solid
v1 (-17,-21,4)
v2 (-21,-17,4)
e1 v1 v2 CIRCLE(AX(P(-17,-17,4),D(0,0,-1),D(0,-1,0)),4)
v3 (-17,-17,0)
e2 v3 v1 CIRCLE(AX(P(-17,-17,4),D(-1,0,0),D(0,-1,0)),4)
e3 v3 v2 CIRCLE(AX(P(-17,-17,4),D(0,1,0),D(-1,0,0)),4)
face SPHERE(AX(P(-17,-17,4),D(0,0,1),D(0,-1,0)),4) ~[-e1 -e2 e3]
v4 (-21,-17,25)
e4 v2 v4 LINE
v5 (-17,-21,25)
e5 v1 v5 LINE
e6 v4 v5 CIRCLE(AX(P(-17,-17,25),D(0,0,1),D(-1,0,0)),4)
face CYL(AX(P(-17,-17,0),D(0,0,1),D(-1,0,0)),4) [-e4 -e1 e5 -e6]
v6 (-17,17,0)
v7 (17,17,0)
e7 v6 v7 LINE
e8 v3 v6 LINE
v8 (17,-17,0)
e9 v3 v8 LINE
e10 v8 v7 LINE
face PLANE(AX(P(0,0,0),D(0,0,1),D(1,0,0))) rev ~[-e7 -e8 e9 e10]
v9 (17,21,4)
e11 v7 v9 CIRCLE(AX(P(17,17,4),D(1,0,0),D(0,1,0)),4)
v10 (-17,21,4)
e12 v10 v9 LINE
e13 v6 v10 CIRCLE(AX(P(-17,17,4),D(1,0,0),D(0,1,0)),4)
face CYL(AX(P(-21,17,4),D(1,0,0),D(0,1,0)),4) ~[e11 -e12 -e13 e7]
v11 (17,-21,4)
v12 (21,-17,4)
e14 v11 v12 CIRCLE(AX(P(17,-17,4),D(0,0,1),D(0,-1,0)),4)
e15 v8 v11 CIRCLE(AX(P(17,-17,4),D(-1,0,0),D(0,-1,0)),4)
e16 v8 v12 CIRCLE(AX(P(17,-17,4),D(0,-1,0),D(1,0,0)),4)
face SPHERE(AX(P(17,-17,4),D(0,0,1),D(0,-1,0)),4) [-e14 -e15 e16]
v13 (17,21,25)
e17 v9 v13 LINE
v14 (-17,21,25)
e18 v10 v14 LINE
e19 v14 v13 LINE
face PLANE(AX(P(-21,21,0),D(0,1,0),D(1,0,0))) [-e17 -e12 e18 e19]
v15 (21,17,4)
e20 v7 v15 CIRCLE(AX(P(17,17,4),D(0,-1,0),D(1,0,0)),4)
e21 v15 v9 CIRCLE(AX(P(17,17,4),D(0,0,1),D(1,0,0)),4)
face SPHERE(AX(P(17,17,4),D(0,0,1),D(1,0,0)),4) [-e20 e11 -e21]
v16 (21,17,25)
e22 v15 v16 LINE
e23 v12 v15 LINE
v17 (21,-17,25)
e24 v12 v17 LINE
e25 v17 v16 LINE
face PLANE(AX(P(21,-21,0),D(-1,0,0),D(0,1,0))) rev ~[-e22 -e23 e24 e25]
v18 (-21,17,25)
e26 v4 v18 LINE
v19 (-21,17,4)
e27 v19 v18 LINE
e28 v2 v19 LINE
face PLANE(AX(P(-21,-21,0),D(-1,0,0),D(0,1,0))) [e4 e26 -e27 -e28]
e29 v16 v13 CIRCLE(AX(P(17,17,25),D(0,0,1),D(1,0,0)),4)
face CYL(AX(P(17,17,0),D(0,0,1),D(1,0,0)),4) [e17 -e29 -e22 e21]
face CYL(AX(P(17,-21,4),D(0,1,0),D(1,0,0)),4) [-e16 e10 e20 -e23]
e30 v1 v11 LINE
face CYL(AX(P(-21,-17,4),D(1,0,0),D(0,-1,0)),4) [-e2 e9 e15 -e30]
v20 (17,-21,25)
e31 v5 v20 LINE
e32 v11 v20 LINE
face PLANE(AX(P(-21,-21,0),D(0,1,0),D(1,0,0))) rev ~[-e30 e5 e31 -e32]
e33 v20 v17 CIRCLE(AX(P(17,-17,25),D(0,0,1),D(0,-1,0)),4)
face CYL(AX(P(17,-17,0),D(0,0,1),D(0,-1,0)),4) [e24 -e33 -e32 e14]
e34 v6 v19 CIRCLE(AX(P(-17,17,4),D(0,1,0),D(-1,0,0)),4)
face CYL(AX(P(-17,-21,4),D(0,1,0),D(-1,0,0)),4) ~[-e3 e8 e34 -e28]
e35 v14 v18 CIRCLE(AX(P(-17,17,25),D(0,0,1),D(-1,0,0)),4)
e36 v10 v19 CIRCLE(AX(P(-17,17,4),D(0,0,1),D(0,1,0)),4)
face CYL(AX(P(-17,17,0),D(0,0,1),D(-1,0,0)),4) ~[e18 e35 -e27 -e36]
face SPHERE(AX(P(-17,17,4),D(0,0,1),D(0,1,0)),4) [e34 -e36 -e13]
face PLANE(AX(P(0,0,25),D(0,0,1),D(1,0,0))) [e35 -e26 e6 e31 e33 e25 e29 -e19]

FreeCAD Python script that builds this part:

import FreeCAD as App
import Part
import Sketcher

V = App.Vector
Q = App.Units.Quantity

doc = App.newDocument("Part")
params = doc.addObject("Spreadsheet::Sheet", "Params")
for row, (alias, value) in enumerate([
    ("sketch1_width", "42 mm"),
    ("pad1_length", "40 mm"),
    ("fillet_radius", "4 mm"),
    ("pocket1_length", "15 mm"),
], start=1):
    params.set(f"A{row}", alias)
    params.set(f"B{row}", "=" + value)
    params.setAlias(f"B{row}", alias)

body = doc.addObject("PartDesign::Body", "Body")

sketch1 = body.newObject("Sketcher::SketchObject", "Sketch")
sketch1.AttachmentSupport = (doc.getObject("XY_Plane"), [""])
sketch1.MapMode = "FlatFace"
sketch1.addGeometry([
    Part.LineSegment(V(-21, 21, 0), V(-21, -21, 0)),
    Part.LineSegment(V(-21, -21, 0), V(21, -21, 0)),
    Part.LineSegment(V(21, -21, 0), V(21, 21, 0)),
    Part.LineSegment(V(21, 21, 0), V(-21, 21, 0)),
], False)
sketch1.addConstraint([
    Sketcher.Constraint("Coincident", 0, 2, 1, 1),
    Sketcher.Constraint("Coincident", 1, 2, 2, 1),
    Sketcher.Constraint("Coincident", 2, 2, 3, 1),
    Sketcher.Constraint("Coincident", 3, 2, 0, 1),
    Sketcher.Constraint("Vertical", 0),
    Sketcher.Constraint("Horizontal", 1),
    Sketcher.Constraint("Vertical", 2),
    Sketcher.Constraint("Horizontal", 3),
    Sketcher.Constraint("Symmetric", 0, 2, 2, 2, -1, 1),
    Sketcher.Constraint("Equal", 3, 0),
    Sketcher.Constraint("DistanceX", 1, 1, 1, 2, Q("42 mm")),
])
sketch1.setExpression("Constraints[10]", "Params.sketch1_width")
pad1 = body.newObject("PartDesign::Pad", "Pad")
pad1.Profile = sketch1
pad1.setExpression("Length", "Params.pad1_length")
doc.recompute()

fillet = body.newObject("PartDesign::Fillet", "Fillet")
fillet.Base = (pad1, ["Edge1"])
fillet.UseAllEdges = True
fillet.setExpression("Radius", "Params.fillet_radius")

sketch2 = body.newObject("Sketcher::SketchObject", "Sketch001")
sketch2.AttachmentSupport = (doc.getObject("XY_Plane"), [""])
sketch2.MapMode = "FlatFace"
sketch2.AttachmentOffset = App.Placement(V(0, 0, 40), App.Rotation())
sketch2.addGeometry([
    Part.LineSegment(V(-26, 31, 0), V(-26, -31, 0)),
    Part.LineSegment(V(-26, -31, 0), V(26, -31, 0)),
    Part.LineSegment(V(26, -31, 0), V(26, 31, 0)),
    Part.LineSegment(V(26, 31, 0), V(-26, 31, 0)),
], False)
sketch2.addConstraint([
    Sketcher.Constraint("Coincident", 0, 2, 1, 1),
    Sketcher.Constraint("Coincident", 1, 2, 2, 1),
    Sketcher.Constraint("Coincident", 2, 2, 3, 1),
    Sketcher.Constraint("Coincident", 3, 2, 0, 1),
    Sketcher.Constraint("Vertical", 0),
    Sketcher.Constraint("Horizontal", 1),
    Sketcher.Constraint("Vertical", 2),
    Sketcher.Constraint("Horizontal", 3),
    Sketcher.Constraint("Symmetric", 0, 2, 2, 2, -1, 1),
    Sketcher.Constraint("DistanceX", 1, 1, 1, 2, Q("51.397461 mm")),
    Sketcher.Constraint("DistanceY", 0, 2, 0, 1, Q("62.125657 mm")),
])
pocket1 = body.newObject("PartDesign::Pocket", "Pocket")
pocket1.Profile = sketch2
pocket1.setExpression("Length", "Params.pocket1_length")

doc.recompute()
